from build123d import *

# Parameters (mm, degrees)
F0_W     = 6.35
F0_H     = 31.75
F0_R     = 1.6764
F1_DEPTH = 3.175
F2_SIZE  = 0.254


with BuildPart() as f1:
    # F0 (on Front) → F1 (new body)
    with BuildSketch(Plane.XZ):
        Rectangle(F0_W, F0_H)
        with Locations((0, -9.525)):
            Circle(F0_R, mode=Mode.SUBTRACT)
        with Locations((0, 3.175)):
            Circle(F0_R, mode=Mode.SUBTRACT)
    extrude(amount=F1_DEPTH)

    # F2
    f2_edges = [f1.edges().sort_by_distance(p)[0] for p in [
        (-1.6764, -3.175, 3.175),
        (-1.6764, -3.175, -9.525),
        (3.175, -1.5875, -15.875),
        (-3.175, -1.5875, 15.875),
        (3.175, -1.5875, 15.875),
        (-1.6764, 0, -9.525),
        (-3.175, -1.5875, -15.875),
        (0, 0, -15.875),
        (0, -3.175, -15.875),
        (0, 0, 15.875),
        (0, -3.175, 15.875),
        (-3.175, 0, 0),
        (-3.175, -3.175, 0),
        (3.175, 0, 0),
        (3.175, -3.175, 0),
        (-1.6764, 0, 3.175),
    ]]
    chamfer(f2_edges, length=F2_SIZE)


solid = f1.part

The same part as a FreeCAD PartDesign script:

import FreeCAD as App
import Part
import Sketcher
from FreeCAD import Vector
Q = App.Units.Quantity


def add_polygon(sketch, points):
    """Adds a closed chain of lines whose ends are joined by coincident constraints."""
    first, n = sketch.GeometryCount, len(points)
    for a, b in zip(points, points[1:] + points[:1]):
        sketch.addGeometry(Part.LineSegment(App.Vector(*a, 0), App.Vector(*b, 0)), False)
    for i in range(n):
        sketch.addConstraint(Sketcher.Constraint("Coincident", first + i, 2, first + (i + 1) % n, 1))

doc = App.newDocument("Part")
body = doc.addObject("PartDesign::Body", "Body")

sketch1 = body.newObject("Sketcher::SketchObject", "Sketch")
sketch1.AttachmentSupport = (doc.getObject("XZ_Plane"), [""])
sketch1.MapMode = "FlatFace"
add_polygon(sketch1, [(-3.2, 15.9), (-3.2, -15.9), (3.2, -15.9), (3.2, 15.9)])
sketch1.addGeometry(Part.Circle(Vector(0, -9.5, 0), Vector(0, 0, 1), 1.7), False)
sketch1.addGeometry(Part.Circle(Vector(0, 3.2, 0), Vector(0, 0, 1), 1.7), False)
sketch1.addConstraint(Sketcher.Constraint("Vertical", 0))
sketch1.addConstraint(Sketcher.Constraint("Horizontal", 1))
sketch1.addConstraint(Sketcher.Constraint("Vertical", 2))
sketch1.addConstraint(Sketcher.Constraint("Horizontal", 3))
sketch1.addConstraint(Sketcher.Constraint("Equal", 4, 5))
sketch1.addConstraint(Sketcher.Constraint("Symmetric", 0, 2, 2, 2, -1, 1))
sketch1.addConstraint(Sketcher.Constraint("PointOnObject", 4, 3, -2))
sketch1.addConstraint(Sketcher.Constraint("PointOnObject", 5, 3, -2))
sketch1.addConstraint(Sketcher.Constraint("Diameter", 4, Q("0.132 in")))
sketch1.addConstraint(Sketcher.Constraint("DistanceY", 4, 3, 2, 2, Q("1 in")))
sketch1.addConstraint(Sketcher.Constraint("DistanceX", 1, 1, 1, 2, Q("0.25 in")))
sketch1.addConstraint(Sketcher.Constraint("DistanceY", 0, 2, 0, 1, Q("1.25 in")))
sketch1.addConstraint(Sketcher.Constraint("DistanceY", 4, 3, 5, 3, Q("0.5 in")))
pad1 = body.newObject("PartDesign::Pad", "Pad")
pad1.Profile = sketch1
pad1.Length = Q("0.125 in")
doc.recompute()

chamfer = body.newObject("PartDesign::Chamfer", "Chamfer")
chamfer.Base = (pad1, ["Edge1"])
chamfer.UseAllEdges = True
chamfer.Size = Q("0.01 in")

doc.recompute()
